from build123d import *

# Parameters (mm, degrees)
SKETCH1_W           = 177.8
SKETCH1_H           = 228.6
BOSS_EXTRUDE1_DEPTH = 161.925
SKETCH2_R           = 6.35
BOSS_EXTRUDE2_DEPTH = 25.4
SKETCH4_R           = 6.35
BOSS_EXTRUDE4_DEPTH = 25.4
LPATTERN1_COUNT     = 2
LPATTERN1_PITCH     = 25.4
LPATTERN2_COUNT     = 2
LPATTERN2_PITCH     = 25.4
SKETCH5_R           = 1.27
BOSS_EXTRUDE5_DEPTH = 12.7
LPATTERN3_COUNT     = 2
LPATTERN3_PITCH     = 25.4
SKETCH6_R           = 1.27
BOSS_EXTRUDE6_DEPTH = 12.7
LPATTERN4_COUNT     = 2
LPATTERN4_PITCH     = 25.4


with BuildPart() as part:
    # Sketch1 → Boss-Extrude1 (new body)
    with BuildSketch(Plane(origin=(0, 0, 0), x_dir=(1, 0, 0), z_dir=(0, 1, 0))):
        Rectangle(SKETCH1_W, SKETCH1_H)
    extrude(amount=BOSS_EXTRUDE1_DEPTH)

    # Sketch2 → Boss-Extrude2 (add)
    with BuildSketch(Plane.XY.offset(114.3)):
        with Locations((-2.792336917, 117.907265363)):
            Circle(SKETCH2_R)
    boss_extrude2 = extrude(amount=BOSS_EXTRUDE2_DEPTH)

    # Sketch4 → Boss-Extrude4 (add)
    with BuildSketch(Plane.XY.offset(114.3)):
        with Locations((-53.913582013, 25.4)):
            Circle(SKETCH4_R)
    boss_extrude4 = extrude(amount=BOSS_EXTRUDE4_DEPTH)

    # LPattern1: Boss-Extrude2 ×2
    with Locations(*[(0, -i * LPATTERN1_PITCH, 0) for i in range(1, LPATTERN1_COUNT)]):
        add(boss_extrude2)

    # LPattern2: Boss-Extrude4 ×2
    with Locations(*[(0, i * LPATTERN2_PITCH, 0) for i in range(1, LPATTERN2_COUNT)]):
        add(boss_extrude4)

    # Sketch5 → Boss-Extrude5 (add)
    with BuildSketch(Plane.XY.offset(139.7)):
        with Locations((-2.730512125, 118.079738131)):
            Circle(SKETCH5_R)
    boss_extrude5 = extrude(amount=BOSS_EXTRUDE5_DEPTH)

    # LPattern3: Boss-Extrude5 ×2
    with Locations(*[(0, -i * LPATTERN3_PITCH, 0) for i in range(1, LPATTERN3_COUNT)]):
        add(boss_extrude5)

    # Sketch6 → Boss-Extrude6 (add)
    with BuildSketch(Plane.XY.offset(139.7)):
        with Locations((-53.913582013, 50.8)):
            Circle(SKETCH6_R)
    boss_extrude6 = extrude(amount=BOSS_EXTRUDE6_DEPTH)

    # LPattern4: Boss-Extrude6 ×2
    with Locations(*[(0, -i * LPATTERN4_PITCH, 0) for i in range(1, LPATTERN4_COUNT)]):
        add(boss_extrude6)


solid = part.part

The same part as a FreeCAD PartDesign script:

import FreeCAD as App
import Part
import Sketcher
Q = App.Units.Quantity

doc = App.newDocument("Part")
body = doc.addObject("PartDesign::Body", "Body")

sketch1 = body.newObject("Sketcher::SketchObject", "Sketch")
sketch1.AttachmentSupport = (doc.getObject("XZ_Plane"), [""])
sketch1.MapMode = "FlatFace"
sketch1.addGeometry(Part.LineSegment(App.Vector(-89, -114, 0), App.Vector(-89, 114, 0)), False)
sketch1.addGeometry(Part.LineSegment(App.Vector(-89, 114, 0), App.Vector(89, 114, 0)), False)
sketch1.addGeometry(Part.LineSegment(App.Vector(89, 114, 0), App.Vector(89, -114, 0)), False)
sketch1.addGeometry(Part.LineSegment(App.Vector(89, -114, 0), App.Vector(-89, -114, 0)), False)
sketch1.addConstraint(Sketcher.Constraint("Coincident", 0, 2, 1, 1))
sketch1.addConstraint(Sketcher.Constraint("Coincident", 1, 2, 2, 1))
sketch1.addConstraint(Sketcher.Constraint("Coincident", 2, 2, 3, 1))
sketch1.addConstraint(Sketcher.Constraint("Coincident", 3, 2, 0, 1))
sketch1.addConstraint(Sketcher.Constraint("Vertical", 0))
sketch1.addConstraint(Sketcher.Constraint("Horizontal", 1))
sketch1.addConstraint(Sketcher.Constraint("Vertical", 2))
sketch1.addConstraint(Sketcher.Constraint("Horizontal", 3))
sketch1.addConstraint(Sketcher.Constraint("Symmetric", 0, 2, 2, 2, -1, 1))
sketch1.addConstraint(Sketcher.Constraint("DistanceX", 1, 1, 1, 2, Q("7 in")))
sketch1.addConstraint(Sketcher.Constraint("DistanceY", 0, 1, 0, 2, Q("9 in")))
pad1 = body.newObject("PartDesign::Pad", "Pad")
pad1.Profile = sketch1
pad1.Length = Q("6.375 in")
pad1.Reversed = True

sketch2 = body.newObject("Sketcher::SketchObject", "Sketch001")
sketch2.AttachmentSupport = (doc.getObject("XY_Plane"), [""])
sketch2.MapMode = "FlatFace"
sketch2.AttachmentOffset = App.Placement(App.Vector(0, 0, 4.5 * 25.4), App.Rotation())
sketch2.addGeometry(Part.Circle(App.Vector(-3, 118, 0), App.Vector(0, 0, 1), 6), False)
sketch2.addConstraint(Sketcher.Constraint("Diameter", 0, Q("0.5 in")))
sketch2.addConstraint(Sketcher.Constraint("DistanceX", 0, 3, -1, 1, 2.792337))
sketch2.addConstraint(Sketcher.Constraint("DistanceY", -1, 1, 0, 3, 117.907265))
pad2 = body.newObject("PartDesign::Pad", "Pad001")
pad2.Profile = sketch2
pad2.Length = Q("1 in")

sketch3 = body.newObject("Sketcher::SketchObject", "Sketch002")
sketch3.AttachmentSupport = (doc.getObject("XY_Plane"), [""])
sketch3.MapMode = "FlatFace"
sketch3.AttachmentOffset = App.Placement(App.Vector(0, 0, 4.5 * 25.4), App.Rotation())
sketch3.addGeometry(Part.Circle(App.Vector(-54, 25, 0), App.Vector(0, 0, 1), 6), False)
sketch3.addConstraint(Sketcher.Constraint("Diameter", 0, Q("0.5 in")))
sketch3.addConstraint(Sketcher.Constraint("DistanceY", -1, 1, 0, 3, Q("1 in")))
sketch3.addConstraint(Sketcher.Constraint("DistanceX", 0, 3, -1, 1, 53.913582))
pad3 = body.newObject("PartDesign::Pad", "Pad002")
pad3.Profile = sketch3
pad3.Length = Q("1 in")
doc.recompute()

linearpattern = body.newObject("PartDesign::LinearPattern", "LinearPattern")
linearpattern.Originals = [pad2]
linearpattern.Direction = (doc.getObject("Y_Axis"), [""])
linearpattern.Mode = "offset"
linearpattern.Offset = Q("1 in")
linearpattern.Occurrences = 2
linearpattern.Reversed = True
body.Tip = linearpattern
doc.recompute()

linearpattern2 = body.newObject("PartDesign::LinearPattern", "LinearPattern001")
linearpattern2.Originals = [pad3]
linearpattern2.Direction = (doc.getObject("Y_Axis"), [""])
linearpattern2.Mode = "offset"
linearpattern2.Offset = Q("1 in")
linearpattern2.Occurrences = 2
body.Tip = linearpattern2

sketch4 = body.newObject("Sketcher::SketchObject", "Sketch003")
sketch4.AttachmentSupport = (doc.getObject("XY_Plane"), [""])
sketch4.MapMode = "FlatFace"
sketch4.AttachmentOffset = App.Placement(App.Vector(0, 0, 5.5 * 25.4), App.Rotation())
sketch4.addGeometry(Part.Circle(App.Vector(-2.7, 118.1, 0), App.Vector(0, 0, 1), 1.3), False)
sketch4.addConstraint(Sketcher.Constraint("Diameter", 0, Q("0.1 in")))
sketch4.addConstraint(Sketcher.Constraint("DistanceY", -1, 1, 0, 3, 118.079738))
sketch4.addConstraint(Sketcher.Constraint("DistanceX", 0, 3, -1, 1, 2.730512))
pad4 = body.newObject("PartDesign::Pad", "Pad003")
pad4.Profile = sketch4
pad4.Length = Q("0.5 in")
doc.recompute()

linearpattern3 = body.newObject("PartDesign::LinearPattern", "LinearPattern002")
linearpattern3.Originals = [pad4]
linearpattern3.Direction = (doc.getObject("Y_Axis"), [""])
linearpattern3.Mode = "offset"
linearpattern3.Offset = Q("1 in")
linearpattern3.Occurrences = 2
linearpattern3.Reversed = True
body.Tip = linearpattern3

sketch5 = body.newObject("Sketcher::SketchObject", "Sketch004")
sketch5.AttachmentSupport = (doc.getObject("XY_Plane"), [""])
sketch5.MapMode = "FlatFace"
sketch5.AttachmentOffset = App.Placement(App.Vector(0, 0, 5.5 * 25.4), App.Rotation())
sketch5.addGeometry(Part.Circle(App.Vector(-53.9, 50.8, 0), App.Vector(0, 0, 1), 1.3), False)
sketch5.addConstraint(Sketcher.Constraint("Diameter", 0, Q("0.1 in")))
sketch5.addConstraint(Sketcher.Constraint("DistanceY", -1, 1, 0, 3, Q("2 in")))
sketch5.addConstraint(Sketcher.Constraint("DistanceX", 0, 3, -1, 1, 53.913582))
pad5 = body.newObject("PartDesign::Pad", "Pad004")
pad5.Profile = sketch5
pad5.Length = Q("0.5 in")
doc.recompute()

linearpattern4 = body.newObject("PartDesign::LinearPattern", "LinearPattern003")
linearpattern4.Originals = [pad5]
linearpattern4.Direction = (doc.getObject("Y_Axis"), [""])
linearpattern4.Mode = "offset"
linearpattern4.Offset = Q("1 in")
linearpattern4.Occurrences = 2
linearpattern4.Reversed = True
body.Tip = linearpattern4

doc.recompute()
